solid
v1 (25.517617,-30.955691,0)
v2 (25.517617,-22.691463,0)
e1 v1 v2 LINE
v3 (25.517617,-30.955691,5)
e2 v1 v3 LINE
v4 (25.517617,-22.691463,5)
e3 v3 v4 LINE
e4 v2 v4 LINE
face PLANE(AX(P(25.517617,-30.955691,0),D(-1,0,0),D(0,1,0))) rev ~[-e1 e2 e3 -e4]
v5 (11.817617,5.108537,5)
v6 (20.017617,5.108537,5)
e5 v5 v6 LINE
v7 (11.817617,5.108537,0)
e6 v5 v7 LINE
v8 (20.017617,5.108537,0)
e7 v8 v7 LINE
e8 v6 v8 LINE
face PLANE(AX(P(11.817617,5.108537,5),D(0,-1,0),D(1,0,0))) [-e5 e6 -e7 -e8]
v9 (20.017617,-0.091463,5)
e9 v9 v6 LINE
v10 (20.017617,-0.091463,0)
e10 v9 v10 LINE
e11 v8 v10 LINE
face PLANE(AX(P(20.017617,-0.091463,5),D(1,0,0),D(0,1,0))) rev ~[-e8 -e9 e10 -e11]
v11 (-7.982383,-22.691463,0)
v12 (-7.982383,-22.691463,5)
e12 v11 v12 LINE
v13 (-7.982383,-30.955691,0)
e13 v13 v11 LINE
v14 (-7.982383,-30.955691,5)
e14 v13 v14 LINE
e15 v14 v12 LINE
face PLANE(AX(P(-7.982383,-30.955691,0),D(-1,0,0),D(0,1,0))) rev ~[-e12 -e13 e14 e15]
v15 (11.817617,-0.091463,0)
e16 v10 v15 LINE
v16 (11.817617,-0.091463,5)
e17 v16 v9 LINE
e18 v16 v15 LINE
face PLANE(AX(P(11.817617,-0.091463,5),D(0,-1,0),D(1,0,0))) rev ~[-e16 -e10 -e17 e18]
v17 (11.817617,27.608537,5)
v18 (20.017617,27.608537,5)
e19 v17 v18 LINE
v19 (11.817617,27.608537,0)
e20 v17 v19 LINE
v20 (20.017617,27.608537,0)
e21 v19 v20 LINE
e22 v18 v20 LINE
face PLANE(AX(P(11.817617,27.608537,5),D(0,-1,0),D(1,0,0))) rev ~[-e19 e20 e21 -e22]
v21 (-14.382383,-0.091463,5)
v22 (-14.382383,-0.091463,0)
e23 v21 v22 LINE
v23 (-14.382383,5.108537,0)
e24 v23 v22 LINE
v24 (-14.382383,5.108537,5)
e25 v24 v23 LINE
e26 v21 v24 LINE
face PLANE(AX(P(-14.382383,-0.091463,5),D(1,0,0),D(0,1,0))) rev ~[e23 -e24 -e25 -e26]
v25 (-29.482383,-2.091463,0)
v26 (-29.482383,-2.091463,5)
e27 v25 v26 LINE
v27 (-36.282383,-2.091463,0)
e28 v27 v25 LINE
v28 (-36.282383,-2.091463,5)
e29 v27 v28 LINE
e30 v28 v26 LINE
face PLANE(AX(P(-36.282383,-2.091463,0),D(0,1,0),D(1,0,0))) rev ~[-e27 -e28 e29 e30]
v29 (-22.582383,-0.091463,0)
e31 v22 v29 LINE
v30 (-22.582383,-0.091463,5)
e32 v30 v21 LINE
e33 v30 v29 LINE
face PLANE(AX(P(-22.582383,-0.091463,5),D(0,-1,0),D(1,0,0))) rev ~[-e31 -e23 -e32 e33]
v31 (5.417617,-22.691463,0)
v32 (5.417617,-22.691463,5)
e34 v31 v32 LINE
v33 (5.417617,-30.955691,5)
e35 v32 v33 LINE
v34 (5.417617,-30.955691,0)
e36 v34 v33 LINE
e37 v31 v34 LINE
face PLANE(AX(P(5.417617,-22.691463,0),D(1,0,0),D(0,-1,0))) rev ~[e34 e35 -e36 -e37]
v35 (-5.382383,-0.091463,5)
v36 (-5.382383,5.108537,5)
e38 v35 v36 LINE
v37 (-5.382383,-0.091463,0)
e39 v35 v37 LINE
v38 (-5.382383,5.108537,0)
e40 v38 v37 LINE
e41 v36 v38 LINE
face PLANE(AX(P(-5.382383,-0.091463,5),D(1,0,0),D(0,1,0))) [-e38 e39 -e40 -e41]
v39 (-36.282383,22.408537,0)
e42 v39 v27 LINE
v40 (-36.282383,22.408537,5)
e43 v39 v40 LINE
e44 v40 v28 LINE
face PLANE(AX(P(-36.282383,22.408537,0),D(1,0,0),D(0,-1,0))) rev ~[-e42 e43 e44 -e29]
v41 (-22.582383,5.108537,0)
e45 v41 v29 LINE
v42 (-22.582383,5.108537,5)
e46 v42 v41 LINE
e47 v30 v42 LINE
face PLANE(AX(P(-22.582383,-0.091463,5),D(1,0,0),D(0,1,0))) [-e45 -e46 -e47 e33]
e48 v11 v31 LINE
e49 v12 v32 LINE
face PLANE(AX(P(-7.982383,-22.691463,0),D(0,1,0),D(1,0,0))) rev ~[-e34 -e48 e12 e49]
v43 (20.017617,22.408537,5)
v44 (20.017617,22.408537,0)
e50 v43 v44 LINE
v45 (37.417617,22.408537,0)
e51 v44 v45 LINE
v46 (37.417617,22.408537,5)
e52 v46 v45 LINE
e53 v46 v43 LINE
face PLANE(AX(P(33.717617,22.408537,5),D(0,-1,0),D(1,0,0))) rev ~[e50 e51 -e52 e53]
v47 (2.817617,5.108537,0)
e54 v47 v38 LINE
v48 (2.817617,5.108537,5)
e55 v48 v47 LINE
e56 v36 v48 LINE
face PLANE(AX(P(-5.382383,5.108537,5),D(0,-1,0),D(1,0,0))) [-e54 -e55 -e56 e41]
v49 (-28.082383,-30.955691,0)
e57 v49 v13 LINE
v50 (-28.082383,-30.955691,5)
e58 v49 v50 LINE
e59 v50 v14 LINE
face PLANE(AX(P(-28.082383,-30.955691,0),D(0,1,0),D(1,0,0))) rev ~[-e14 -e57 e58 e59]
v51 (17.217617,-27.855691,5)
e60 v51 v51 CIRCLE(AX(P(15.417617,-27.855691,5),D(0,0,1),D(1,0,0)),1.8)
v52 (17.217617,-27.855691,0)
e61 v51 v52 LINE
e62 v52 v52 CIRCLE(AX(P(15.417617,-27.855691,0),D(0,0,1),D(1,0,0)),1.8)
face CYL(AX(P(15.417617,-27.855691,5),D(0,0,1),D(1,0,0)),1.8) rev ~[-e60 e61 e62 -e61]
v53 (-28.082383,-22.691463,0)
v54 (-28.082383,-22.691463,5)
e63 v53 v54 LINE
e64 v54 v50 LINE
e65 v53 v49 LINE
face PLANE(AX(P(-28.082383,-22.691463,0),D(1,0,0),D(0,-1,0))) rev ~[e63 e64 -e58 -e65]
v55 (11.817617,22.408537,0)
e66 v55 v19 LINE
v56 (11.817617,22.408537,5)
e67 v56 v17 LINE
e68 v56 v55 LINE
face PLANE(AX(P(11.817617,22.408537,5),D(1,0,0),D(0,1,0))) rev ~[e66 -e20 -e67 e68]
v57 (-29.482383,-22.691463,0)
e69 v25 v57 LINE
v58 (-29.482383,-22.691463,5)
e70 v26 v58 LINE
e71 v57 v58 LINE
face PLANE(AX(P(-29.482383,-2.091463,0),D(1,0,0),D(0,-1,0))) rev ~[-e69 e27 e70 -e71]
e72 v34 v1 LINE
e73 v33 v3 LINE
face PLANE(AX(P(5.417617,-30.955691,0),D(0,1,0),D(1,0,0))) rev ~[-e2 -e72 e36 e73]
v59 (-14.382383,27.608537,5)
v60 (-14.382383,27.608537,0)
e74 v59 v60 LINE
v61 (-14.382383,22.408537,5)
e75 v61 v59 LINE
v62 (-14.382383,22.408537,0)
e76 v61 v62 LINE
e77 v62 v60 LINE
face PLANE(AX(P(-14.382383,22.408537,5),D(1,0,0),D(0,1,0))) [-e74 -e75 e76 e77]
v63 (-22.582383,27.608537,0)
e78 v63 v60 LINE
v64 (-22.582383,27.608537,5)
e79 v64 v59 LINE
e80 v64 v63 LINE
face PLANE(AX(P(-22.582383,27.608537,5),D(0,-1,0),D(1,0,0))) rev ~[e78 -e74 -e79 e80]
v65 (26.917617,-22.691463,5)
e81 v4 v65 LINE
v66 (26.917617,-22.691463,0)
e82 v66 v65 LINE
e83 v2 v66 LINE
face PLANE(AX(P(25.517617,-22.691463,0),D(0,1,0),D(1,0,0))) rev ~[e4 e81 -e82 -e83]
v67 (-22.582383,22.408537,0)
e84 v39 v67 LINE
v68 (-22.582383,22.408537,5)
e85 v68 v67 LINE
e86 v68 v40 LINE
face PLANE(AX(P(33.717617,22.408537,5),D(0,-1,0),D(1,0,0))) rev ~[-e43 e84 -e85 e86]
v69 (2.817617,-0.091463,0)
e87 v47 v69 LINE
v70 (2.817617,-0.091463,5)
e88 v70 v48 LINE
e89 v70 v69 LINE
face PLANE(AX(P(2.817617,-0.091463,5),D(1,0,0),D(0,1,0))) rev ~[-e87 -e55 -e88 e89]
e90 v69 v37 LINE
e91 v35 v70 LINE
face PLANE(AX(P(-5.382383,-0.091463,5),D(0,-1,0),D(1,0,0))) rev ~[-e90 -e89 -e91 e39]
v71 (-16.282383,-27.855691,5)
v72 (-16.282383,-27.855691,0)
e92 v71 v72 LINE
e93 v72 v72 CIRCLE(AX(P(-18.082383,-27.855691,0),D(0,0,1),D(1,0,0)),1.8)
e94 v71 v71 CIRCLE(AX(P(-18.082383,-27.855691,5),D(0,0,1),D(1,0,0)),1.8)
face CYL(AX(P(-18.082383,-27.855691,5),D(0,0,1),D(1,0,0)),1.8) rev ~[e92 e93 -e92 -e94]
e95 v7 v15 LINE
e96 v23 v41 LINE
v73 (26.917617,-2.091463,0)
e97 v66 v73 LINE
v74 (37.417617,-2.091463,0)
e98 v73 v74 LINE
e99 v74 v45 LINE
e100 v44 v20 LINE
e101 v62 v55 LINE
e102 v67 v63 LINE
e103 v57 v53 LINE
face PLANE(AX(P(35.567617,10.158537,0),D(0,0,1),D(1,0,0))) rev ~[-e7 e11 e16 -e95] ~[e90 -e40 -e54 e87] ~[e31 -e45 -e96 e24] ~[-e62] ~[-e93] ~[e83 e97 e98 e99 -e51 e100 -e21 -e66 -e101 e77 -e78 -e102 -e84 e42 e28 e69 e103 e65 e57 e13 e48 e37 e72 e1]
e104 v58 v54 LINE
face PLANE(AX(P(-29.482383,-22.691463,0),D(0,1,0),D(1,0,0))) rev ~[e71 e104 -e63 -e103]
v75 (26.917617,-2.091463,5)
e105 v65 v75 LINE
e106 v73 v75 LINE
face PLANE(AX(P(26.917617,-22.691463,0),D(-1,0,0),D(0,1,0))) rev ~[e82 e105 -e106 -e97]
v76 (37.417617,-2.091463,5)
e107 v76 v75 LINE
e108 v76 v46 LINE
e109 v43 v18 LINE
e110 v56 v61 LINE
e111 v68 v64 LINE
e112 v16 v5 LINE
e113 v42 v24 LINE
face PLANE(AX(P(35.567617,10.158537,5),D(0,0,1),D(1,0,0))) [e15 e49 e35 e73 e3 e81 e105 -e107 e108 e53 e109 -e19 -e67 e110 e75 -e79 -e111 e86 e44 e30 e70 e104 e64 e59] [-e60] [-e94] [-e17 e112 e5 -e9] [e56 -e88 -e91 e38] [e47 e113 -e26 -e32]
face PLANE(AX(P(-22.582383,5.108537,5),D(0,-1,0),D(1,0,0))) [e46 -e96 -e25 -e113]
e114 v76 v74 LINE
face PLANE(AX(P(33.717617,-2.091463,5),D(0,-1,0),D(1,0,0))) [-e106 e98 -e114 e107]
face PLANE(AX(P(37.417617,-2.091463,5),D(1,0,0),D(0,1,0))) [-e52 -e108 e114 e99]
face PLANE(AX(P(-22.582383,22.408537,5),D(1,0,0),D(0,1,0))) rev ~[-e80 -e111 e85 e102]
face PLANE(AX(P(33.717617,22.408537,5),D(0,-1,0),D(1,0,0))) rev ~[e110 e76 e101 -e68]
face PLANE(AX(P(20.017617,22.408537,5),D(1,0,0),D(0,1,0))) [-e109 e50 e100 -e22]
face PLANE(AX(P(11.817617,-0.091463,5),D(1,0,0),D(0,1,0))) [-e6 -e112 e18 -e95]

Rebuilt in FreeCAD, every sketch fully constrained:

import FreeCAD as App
import Part
import Sketcher
Q = App.Units.Quantity

doc = App.newDocument("Part")
params = doc.addObject("Spreadsheet::Sheet", "Params")
for row, (alias, value) in enumerate([
    ("sketch1_width", "70 mm"),
    ("sketch1_width2", "6.8 mm"),
    ("sketch1_width3", "1.4 mm"),
    ("sketch1_width4", "20.1 mm"),
    ("sketch1_height", "24.5 mm"),
    ("pad1_length", "5 mm"),
    ("sketch2_diameter", "3.6 mm"),
    ("sketch3_diameter", "3.6 mm"),
    ("sketch4_width", "8.2 mm"),
    ("sketch4_height", "5.2 mm"),
    ("sketch5_width", "8.2 mm"),
    ("sketch5_height", "5.2 mm"),
    ("sketch6_width", "8.2 mm"),
    ("sketch6_height", "5.2 mm"),
    ("sketch7_width", "3.7 mm"),
    ("sketch7_height", "24.5 mm"),
    ("pad2_length", "5 mm"),
    ("sketch8_width", "8.2 mm"),
    ("sketch8_height", "5.2 mm"),
    ("pad3_length", "5 mm"),
], start=1):
    params.set(f"A{row}", alias)
    params.set(f"B{row}", "=" + value)
    params.setAlias(f"B{row}", alias)

body = doc.addObject("PartDesign::Body", "Body")

sketch1 = body.newObject("Sketcher::SketchObject", "Sketch")
sketch1.AttachmentSupport = (doc.getObject("XY_Plane"), [""])
sketch1.MapMode = "FlatFace"
sketch1.addGeometry([
    Part.LineSegment(App.Vector(26.9, -2.1, 0), App.Vector(33.7, -2.1, 0)),
    Part.LineSegment(App.Vector(33.7, -2.1, 0), App.Vector(33.7, 22.4, 0)),
    Part.LineSegment(App.Vector(33.7, 22.4, 0), App.Vector(-36.3, 22.4, 0)),
    Part.LineSegment(App.Vector(-36.3, 22.4, 0), App.Vector(-36.3, -2.1, 0)),
    Part.LineSegment(App.Vector(-36.3, -2.1, 0), App.Vector(-29.5, -2.1, 0)),
    Part.LineSegment(App.Vector(-29.5, -2.1, 0), App.Vector(-29.5, -22.7, 0)),
    Part.LineSegment(App.Vector(-29.5, -22.7, 0), App.Vector(-28.1, -22.7, 0)),
    Part.LineSegment(App.Vector(-28.1, -22.7, 0), App.Vector(-28.1, -31, 0)),
    Part.LineSegment(App.Vector(-28.1, -31, 0), App.Vector(-8, -31, 0)),
    Part.LineSegment(App.Vector(-8, -31, 0), App.Vector(-8, -22.7, 0)),
    Part.LineSegment(App.Vector(-8, -22.7, 0), App.Vector(5.4, -22.7, 0)),
    Part.LineSegment(App.Vector(5.4, -22.7, 0), App.Vector(5.4, -31, 0)),
    Part.LineSegment(App.Vector(5.4, -31, 0), App.Vector(25.5, -31, 0)),
    Part.LineSegment(App.Vector(25.5, -31, 0), App.Vector(25.5, -22.7, 0)),
    Part.LineSegment(App.Vector(25.5, -22.7, 0), App.Vector(26.9, -22.7, 0)),
    Part.LineSegment(App.Vector(26.9, -22.7, 0), App.Vector(26.9, -2.1, 0)),
], False)
sketch1.addConstraint([
    Sketcher.Constraint("Coincident", 0, 2, 1, 1),
    Sketcher.Constraint("Coincident", 1, 2, 2, 1),
    Sketcher.Constraint("Coincident", 2, 2, 3, 1),
    Sketcher.Constraint("Coincident", 3, 2, 4, 1),
    Sketcher.Constraint("Coincident", 4, 2, 5, 1),
    Sketcher.Constraint("Coincident", 5, 2, 6, 1),
    Sketcher.Constraint("Coincident", 6, 2, 7, 1),
    Sketcher.Constraint("Coincident", 7, 2, 8, 1),
    Sketcher.Constraint("Coincident", 8, 2, 9, 1),
    Sketcher.Constraint("Coincident", 9, 2, 10, 1),
    Sketcher.Constraint("Coincident", 10, 2, 11, 1),
    Sketcher.Constraint("Coincident", 11, 2, 12, 1),
    Sketcher.Constraint("Coincident", 12, 2, 13, 1),
    Sketcher.Constraint("Coincident", 13, 2, 14, 1),
    Sketcher.Constraint("Coincident", 14, 2, 15, 1),
    Sketcher.Constraint("Coincident", 15, 2, 0, 1),
    Sketcher.Constraint("Horizontal", 0),
    Sketcher.Constraint("Vertical", 1),
    Sketcher.Constraint("Horizontal", 2),
    Sketcher.Constraint("Vertical", 3),
    Sketcher.Constraint("Horizontal", 4),
    Sketcher.Constraint("Vertical", 5),
    Sketcher.Constraint("Horizontal", 6),
    Sketcher.Constraint("Vertical", 7),
    Sketcher.Constraint("Horizontal", 8),
    Sketcher.Constraint("Vertical", 9),
    Sketcher.Constraint("Horizontal", 10),
    Sketcher.Constraint("Vertical", 11),
    Sketcher.Constraint("Horizontal", 12),
    Sketcher.Constraint("Vertical", 13),
    Sketcher.Constraint("Horizontal", 14),
    Sketcher.Constraint("Vertical", 15),
    Sketcher.Constraint("Horizontal", 0, 2, 3, 2),
    Sketcher.Constraint("Horizontal", 6, 2, 9, 2),
    Sketcher.Constraint("Horizontal", 8, 2, 11, 2),
    Sketcher.Constraint("Horizontal", 10, 2, 13, 2),
    Sketcher.Constraint("Equal", 0, 4),
    Sketcher.Constraint("Equal", 8, 12),
    Sketcher.Constraint("Equal", 6, 14),
    Sketcher.Constraint("DistanceX", 2, 2, 2, 1, Q("70 mm")),
    Sketcher.Constraint("DistanceX", 0, 1, 0, 2, Q("6.8 mm")),
    Sketcher.Constraint("DistanceX", 6, 1, 6, 2, Q("1.4 mm")),
    Sketcher.Constraint("DistanceX", 8, 1, 8, 2, Q("20.1 mm")),
    Sketcher.Constraint("DistanceY", 1, 1, 1, 2, Q("24.5 mm")),
    Sketcher.Constraint("DistanceY", 5, 2, 5, 1, Q("20.6 mm")),
    Sketcher.Constraint("DistanceY", 7, 2, 7, 1, Q("8.264228 mm")),
    Sketcher.Constraint("DistanceY", 7, 2, -1, 1, Q("30.955691 mm")),
    Sketcher.Constraint("DistanceX", -1, 1, 0, 2, Q("33.717617 mm")),
])
sketch1.setExpression("Constraints[39]", "Params.sketch1_width")
sketch1.setExpression("Constraints[40]", "Params.sketch1_width2")
sketch1.setExpression("Constraints[41]", "Params.sketch1_width3")
sketch1.setExpression("Constraints[42]", "Params.sketch1_width4")
sketch1.setExpression("Constraints[43]", "Params.sketch1_height")
pad1 = body.newObject("PartDesign::Pad", "Pad")
pad1.Profile = sketch1
pad1.setExpression("Length", "Params.pad1_length")

sketch2 = body.newObject("Sketcher::SketchObject", "Sketch001")
sketch2.AttachmentSupport = (doc.getObject("XY_Plane"), [""])
sketch2.MapMode = "FlatFace"
sketch2.AttachmentOffset = App.Placement(App.Vector(0, 0, 5), App.Rotation())
sketch2.addGeometry(Part.Circle(App.Vector(15.4, -27.9, 0), App.Vector(0, 0, 1), 1.8), False)
sketch2.addConstraint([
    Sketcher.Constraint("Diameter", 0, Q("3.6 mm")),
    Sketcher.Constraint("DistanceY", 0, 3, -1, 1, Q("27.855691 mm")),
    Sketcher.Constraint("DistanceX", -1, 1, 0, 3, Q("15.417617 mm")),
])
sketch2.setExpression("Constraints[0]", "Params.sketch2_diameter")
pocket1 = body.newObject("PartDesign::Pocket", "Pocket")
pocket1.Profile = sketch2
pocket1.Type = "UpToFirst"

sketch3 = body.newObject("Sketcher::SketchObject", "Sketch002")
sketch3.AttachmentSupport = (doc.getObject("XY_Plane"), [""])
sketch3.MapMode = "FlatFace"
sketch3.AttachmentOffset = App.Placement(App.Vector(0, 0, 5), App.Rotation())
sketch3.addGeometry(Part.Circle(App.Vector(-18.1, -27.9, 0), App.Vector(0, 0, 1), 1.8), False)
sketch3.addConstraint([
    Sketcher.Constraint("Diameter", 0, Q("3.6 mm")),
    Sketcher.Constraint("DistanceY", 0, 3, -1, 1, Q("27.855691 mm")),
    Sketcher.Constraint("DistanceX", 0, 3, -1, 1, Q("18.082383 mm")),
])
sketch3.setExpression("Constraints[0]", "Params.sketch3_diameter")
pocket2 = body.newObject("PartDesign::Pocket", "Pocket001")
pocket2.Profile = sketch3
pocket2.Type = "UpToFirst"

sketch4 = body.newObject("Sketcher::SketchObject", "Sketch003")
sketch4.AttachmentSupport = (doc.getObject("XY_Plane"), [""])
sketch4.MapMode = "FlatFace"
sketch4.AttachmentOffset = App.Placement(App.Vector(0, 0, 5), App.Rotation())
sketch4.addGeometry([
    Part.LineSegment(App.Vector(-23, 5, 0), App.Vector(-23, 0, 0)),
    Part.LineSegment(App.Vector(-23, 0, 0), App.Vector(-14, 0, 0)),
    Part.LineSegment(App.Vector(-14, 0, 0), App.Vector(-14, 5, 0)),
    Part.LineSegment(App.Vector(-14, 5, 0), App.Vector(-23, 5, 0)),
], False)
sketch4.addConstraint([
    Sketcher.Constraint("Coincident", 0, 2, 1, 1),
    Sketcher.Constraint("Coincident", 1, 2, 2, 1),
    Sketcher.Constraint("Coincident", 2, 2, 3, 1),
    Sketcher.Constraint("Coincident", 3, 2, 0, 1),
    Sketcher.Constraint("Vertical", 0),
    Sketcher.Constraint("Horizontal", 1),
    Sketcher.Constraint("Vertical", 2),
    Sketcher.Constraint("Horizontal", 3),
    Sketcher.Constraint("DistanceX", 1, 1, 1, 2, Q("8.2 mm")),
    Sketcher.Constraint("DistanceY", 0, 2, 0, 1, Q("5.2 mm")),
    Sketcher.Constraint("DistanceX", 0, 2, -1, 1, Q("22.582383 mm")),
    Sketcher.Constraint("DistanceY", 0, 2, -1, 1, Q("0.091463 mm")),
])
sketch4.setExpression("Constraints[8]", "Params.sketch4_width")
sketch4.setExpression("Constraints[9]", "Params.sketch4_height")
pocket3 = body.newObject("PartDesign::Pocket", "Pocket002")
pocket3.Profile = sketch4
pocket3.Type = "UpToFirst"

sketch5 = body.newObject("Sketcher::SketchObject", "Sketch004")
sketch5.AttachmentSupport = (doc.getObject("XY_Plane"), [""])
sketch5.MapMode = "FlatFace"
sketch5.AttachmentOffset = App.Placement(App.Vector(0, 0, 5), App.Rotation())
sketch5.addGeometry([
    Part.LineSegment(App.Vector(-5, 5, 0), App.Vector(-5, 0, 0)),
    Part.LineSegment(App.Vector(-5, 0, 0), App.Vector(3, 0, 0)),
    Part.LineSegment(App.Vector(3, 0, 0), App.Vector(3, 5, 0)),
    Part.LineSegment(App.Vector(3, 5, 0), App.Vector(-5, 5, 0)),
], False)
sketch5.addConstraint([
    Sketcher.Constraint("Coincident", 0, 2, 1, 1),
    Sketcher.Constraint("Coincident", 1, 2, 2, 1),
    Sketcher.Constraint("Coincident", 2, 2, 3, 1),
    Sketcher.Constraint("Coincident", 3, 2, 0, 1),
    Sketcher.Constraint("Vertical", 0),
    Sketcher.Constraint("Horizontal", 1),
    Sketcher.Constraint("Vertical", 2),
    Sketcher.Constraint("Horizontal", 3),
    Sketcher.Constraint("DistanceX", 1, 1, 1, 2, Q("8.2 mm")),
    Sketcher.Constraint("DistanceY", 0, 2, 0, 1, Q("5.2 mm")),
    Sketcher.Constraint("DistanceX", 0, 2, -1, 1, Q("5.382383 mm")),
    Sketcher.Constraint("DistanceY", 0, 2, -1, 1, Q("0.091463 mm")),
])
sketch5.setExpression("Constraints[8]", "Params.sketch5_width")
sketch5.setExpression("Constraints[9]", "Params.sketch5_height")
pocket4 = body.newObject("PartDesign::Pocket", "Pocket003")
pocket4.Profile = sketch5
pocket4.Type = "UpToFirst"

sketch6 = body.newObject("Sketcher::SketchObject", "Sketch005")
sketch6.AttachmentSupport = (doc.getObject("XY_Plane"), [""])
sketch6.MapMode = "FlatFace"
sketch6.AttachmentOffset = App.Placement(App.Vector(0, 0, 5), App.Rotation())
sketch6.addGeometry([
    Part.LineSegment(App.Vector(12, 5, 0), App.Vector(12, 0, 0)),
    Part.LineSegment(App.Vector(12, 0, 0), App.Vector(20, 0, 0)),
    Part.LineSegment(App.Vector(20, 0, 0), App.Vector(20, 5, 0)),
    Part.LineSegment(App.Vector(20, 5, 0), App.Vector(12, 5, 0)),
], False)
sketch6.addConstraint([
    Sketcher.Constraint("Coincident", 0, 2, 1, 1),
    Sketcher.Constraint("Coincident", 1, 2, 2, 1),
    Sketcher.Constraint("Coincident", 2, 2, 3, 1),
    Sketcher.Constraint("Coincident", 3, 2, 0, 1),
    Sketcher.Constraint("Vertical", 0),
    Sketcher.Constraint("Horizontal", 1),
    Sketcher.Constraint("Vertical", 2),
    Sketcher.Constraint("Horizontal", 3),
    Sketcher.Constraint("DistanceX", 1, 1, 1, 2, Q("8.2 mm")),
    Sketcher.Constraint("DistanceY", 0, 2, 0, 1, Q("5.2 mm")),
    Sketcher.Constraint("DistanceX", -1, 1, 0, 2, Q("11.817617 mm")),
    Sketcher.Constraint("DistanceY", 0, 2, -1, 1, Q("0.091463 mm")),
])
sketch6.setExpression("Constraints[8]", "Params.sketch6_width")
sketch6.setExpression("Constraints[9]", "Params.sketch6_height")
pocket5 = body.newObject("PartDesign::Pocket", "Pocket004")
pocket5.Profile = sketch6
pocket5.Type = "UpToFirst"

sketch7 = body.newObject("Sketcher::SketchObject", "Sketch006")
sketch7.AttachmentSupport = (doc.getObject("XY_Plane"), [""])
sketch7.MapMode = "FlatFace"
sketch7.AttachmentOffset = App.Placement(App.Vector(0, 0, 5), App.Rotation())
sketch7.addGeometry([
    Part.LineSegment(App.Vector(33.7, 22.4, 0), App.Vector(33.7, -2.1, 0)),
    Part.LineSegment(App.Vector(33.7, -2.1, 0), App.Vector(37.4, -2.1, 0)),
    Part.LineSegment(App.Vector(37.4, -2.1, 0), App.Vector(37.4, 22.4, 0)),
    Part.LineSegment(App.Vector(37.4, 22.4, 0), App.Vector(33.7, 22.4, 0)),
], False)
sketch7.addConstraint([
    Sketcher.Constraint("Coincident", 0, 2, 1, 1),
    Sketcher.Constraint("Coincident", 1, 2, 2, 1),
    Sketcher.Constraint("Coincident", 2, 2, 3, 1),
    Sketcher.Constraint("Coincident", 3, 2, 0, 1),
    Sketcher.Constraint("Vertical", 0),
    Sketcher.Constraint("Horizontal", 1),
    Sketcher.Constraint("Vertical", 2),
    Sketcher.Constraint("Horizontal", 3),
    Sketcher.Constraint("DistanceX", 1, 1, 1, 2, Q("3.7 mm")),
    Sketcher.Constraint("DistanceY", 0, 2, 0, 1, Q("24.5 mm")),
    Sketcher.Constraint("DistanceX", -1, 1, 0, 2, Q("33.717617 mm")),
    Sketcher.Constraint("DistanceY", 0, 2, -1, 1, Q("2.091463 mm")),
])
sketch7.setExpression("Constraints[8]", "Params.sketch7_width")
sketch7.setExpression("Constraints[9]", "Params.sketch7_height")
pad2 = body.newObject("PartDesign::Pad", "Pad001")
pad2.Profile = sketch7
pad2.setExpression("Length", "Params.pad2_length")
pad2.Reversed = True

sketch8 = body.newObject("Sketcher::SketchObject", "Sketch007")
sketch8.AttachmentSupport = (doc.getObject("XY_Plane"), [""])
sketch8.MapMode = "FlatFace"
sketch8.AttachmentOffset = App.Placement(App.Vector(0, 0, 5), App.Rotation())
sketch8.addGeometry([
    Part.LineSegment(App.Vector(-23, 28, 0), App.Vector(-23, 22, 0)),
    Part.LineSegment(App.Vector(-23, 22, 0), App.Vector(-14, 22, 0)),
    Part.LineSegment(App.Vector(-14, 22, 0), App.Vector(-14, 28, 0)),
    Part.LineSegment(App.Vector(-14, 28, 0), App.Vector(-23, 28, 0)),
    Part.LineSegment(App.Vector(12, 28, 0), App.Vector(12, 22, 0)),
    Part.LineSegment(App.Vector(12, 22, 0), App.Vector(20, 22, 0)),
    Part.LineSegment(App.Vector(20, 22, 0), App.Vector(20, 28, 0)),
    Part.LineSegment(App.Vector(20, 28, 0), App.Vector(12, 28, 0)),
], False)
sketch8.addConstraint([
    Sketcher.Constraint("Coincident", 0, 2, 1, 1),
    Sketcher.Constraint("Coincident", 1, 2, 2, 1),
    Sketcher.Constraint("Coincident", 2, 2, 3, 1),
    Sketcher.Constraint("Coincident", 3, 2, 0, 1),
    Sketcher.Constraint("Coincident", 4, 2, 5, 1),
    Sketcher.Constraint("Coincident", 5, 2, 6, 1),
    Sketcher.Constraint("Coincident", 6, 2, 7, 1),
    Sketcher.Constraint("Coincident", 7, 2, 4, 1),
    Sketcher.Constraint("Vertical", 0),
    Sketcher.Constraint("Horizontal", 1),
    Sketcher.Constraint("Vertical", 2),
    Sketcher.Constraint("Horizontal", 3),
    Sketcher.Constraint("Vertical", 4),
    Sketcher.Constraint("Horizontal", 5),
    Sketcher.Constraint("Vertical", 6),
    Sketcher.Constraint("Horizontal", 7),
    Sketcher.Constraint("Horizontal", 1, 2, 4, 2),
    Sketcher.Constraint("Horizontal", 3, 2, 6, 2),
    Sketcher.Constraint("Equal", 3, 5),
    Sketcher.Constraint("DistanceX", 1, 1, 1, 2, Q("8.2 mm")),
    Sketcher.Constraint("DistanceY", 0, 2, 0, 1, Q("5.2 mm")),
    Sketcher.Constraint("DistanceX", 1, 2, 4, 2, Q("26.2 mm")),
    Sketcher.Constraint("DistanceX", 0, 2, -1, 1, Q("22.582383 mm")),
    Sketcher.Constraint("DistanceY", -1, 1, 0, 2, Q("22.408537 mm")),
])
sketch8.setExpression("Constraints[19]", "Params.sketch8_width")
sketch8.setExpression("Constraints[20]", "Params.sketch8_height")
pad3 = body.newObject("PartDesign::Pad", "Pad002")
pad3.Profile = sketch8
pad3.setExpression("Length", "Params.pad3_length")
pad3.Reversed = True

doc.recompute()
